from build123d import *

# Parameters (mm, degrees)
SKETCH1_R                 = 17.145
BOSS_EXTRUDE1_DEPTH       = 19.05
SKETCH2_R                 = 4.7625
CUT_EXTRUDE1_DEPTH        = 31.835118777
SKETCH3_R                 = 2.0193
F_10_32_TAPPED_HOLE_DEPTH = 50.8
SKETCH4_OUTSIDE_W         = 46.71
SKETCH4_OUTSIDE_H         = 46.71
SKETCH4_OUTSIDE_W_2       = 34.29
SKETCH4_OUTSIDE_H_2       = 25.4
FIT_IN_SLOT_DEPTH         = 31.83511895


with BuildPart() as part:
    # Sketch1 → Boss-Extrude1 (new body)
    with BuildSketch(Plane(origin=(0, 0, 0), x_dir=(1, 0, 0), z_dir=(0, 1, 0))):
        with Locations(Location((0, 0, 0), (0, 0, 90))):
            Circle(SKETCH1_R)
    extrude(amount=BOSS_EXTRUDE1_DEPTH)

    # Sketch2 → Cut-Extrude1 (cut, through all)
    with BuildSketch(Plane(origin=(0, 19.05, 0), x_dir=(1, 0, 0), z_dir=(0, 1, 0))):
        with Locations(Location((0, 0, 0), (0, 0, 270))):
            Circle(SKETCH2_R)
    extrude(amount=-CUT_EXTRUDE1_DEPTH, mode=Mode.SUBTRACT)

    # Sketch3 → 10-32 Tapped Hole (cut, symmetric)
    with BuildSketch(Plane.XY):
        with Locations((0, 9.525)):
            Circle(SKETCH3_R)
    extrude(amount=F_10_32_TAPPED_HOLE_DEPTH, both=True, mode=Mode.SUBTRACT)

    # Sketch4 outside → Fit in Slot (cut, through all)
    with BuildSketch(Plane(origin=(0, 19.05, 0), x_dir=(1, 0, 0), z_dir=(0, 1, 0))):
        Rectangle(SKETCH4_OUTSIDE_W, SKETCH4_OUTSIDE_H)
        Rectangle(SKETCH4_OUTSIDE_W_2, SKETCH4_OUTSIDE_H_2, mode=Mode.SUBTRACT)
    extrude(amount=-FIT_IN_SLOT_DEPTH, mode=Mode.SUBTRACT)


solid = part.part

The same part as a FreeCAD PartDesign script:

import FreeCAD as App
import Part
import Sketcher
Q = App.Units.Quantity


def add_polygon(sketch, points):
    """Adds a closed chain of lines whose ends are joined by coincident constraints."""
    first, n = sketch.GeometryCount, len(points)
    for a, b in zip(points, points[1:] + points[:1]):
        sketch.addGeometry(Part.LineSegment(App.Vector(*a, 0), App.Vector(*b, 0)), False)
    for i in range(n):
        sketch.addConstraint(Sketcher.Constraint("Coincident", first + i, 2, first + (i + 1) % n, 1))

doc = App.newDocument("Part")
params = doc.addObject("Spreadsheet::Sheet", "Params")
for row, (alias, value) in enumerate([
    ("sketch1_diameter", "1.35 in"),
    ("pad1_length", "0.75 in"),
    ("sketch2_diameter", "0.375 in"),
    ("sketch3_diameter", "0.159 in"),
    ("pocket2_length", "4 in"),
    ("sketch4_height", "1 in"),
    ("sketch4_width", "1.35 in"),
], start=1):
    params.set(f"A{row}", alias)
    params.set(f"B{row}", "=" + value)
    params.setAlias(f"B{row}", alias)

body = doc.addObject("PartDesign::Body", "Body")

sketch1 = body.newObject("Sketcher::SketchObject", "Sketch")
sketch1.AttachmentSupport = (doc.getObject("XZ_Plane"), [""])
sketch1.MapMode = "FlatFace"
sketch1.addGeometry(Part.Circle(App.Vector(0, 0, 0), App.Vector(0, 0, 1), 17), False)
sketch1.addConstraint(Sketcher.Constraint("Coincident", 0, 3, -1, 1))
sketch1.addConstraint(Sketcher.Constraint("Diameter", 0, Q("1.35 in")))
sketch1.setExpression("Constraints[1]", "Params.sketch1_diameter")
pad1 = body.newObject("PartDesign::Pad", "Pad")
pad1.Profile = sketch1
pad1.setExpression("Length", "Params.pad1_length")
pad1.Reversed = True

sketch2 = body.newObject("Sketcher::SketchObject", "Sketch001")
sketch2.AttachmentSupport = (doc.getObject("XZ_Plane"), [""])
sketch2.MapMode = "FlatFace"
sketch2.AttachmentOffset = App.Placement(App.Vector(0, 0, -0.75 * 25.4), App.Rotation())
sketch2.addGeometry(Part.Circle(App.Vector(0, 0, 0), App.Vector(0, 0, 1), 4.8), False)
sketch2.addConstraint(Sketcher.Constraint("Coincident", 0, 3, -1, 1))
sketch2.addConstraint(Sketcher.Constraint("Diameter", 0, Q("0.375 in")))
sketch2.setExpression("Constraints[1]", "Params.sketch2_diameter")
pocket1 = body.newObject("PartDesign::Pocket", "Pocket")
pocket1.Profile = sketch2
pocket1.Type = "ThroughAll"
pocket1.Reversed = True

sketch3 = body.newObject("Sketcher::SketchObject", "Sketch002")
sketch3.AttachmentSupport = (doc.getObject("XY_Plane"), [""])
sketch3.MapMode = "FlatFace"
sketch3.addGeometry(Part.Circle(App.Vector(0, 9.5, 0), App.Vector(0, 0, 1), 2), False)
sketch3.addConstraint(Sketcher.Constraint("PointOnObject", 0, 3, -2))
sketch3.addConstraint(Sketcher.Constraint("Diameter", 0, Q("0.159 in")))
sketch3.addConstraint(Sketcher.Constraint("DistanceY", -1, 1, 0, 3, Q("0.375 in")))
sketch3.setExpression("Constraints[1]", "Params.sketch3_diameter")
pocket2 = body.newObject("PartDesign::Pocket", "Pocket001")
pocket2.Profile = sketch3
pocket2.setExpression("Length", "Params.pocket2_length")
pocket2.Midplane = True

sketch4 = body.newObject("Sketcher::SketchObject", "Sketch003")
sketch4.AttachmentSupport = (doc.getObject("XZ_Plane"), [""])
sketch4.MapMode = "FlatFace"
sketch4.AttachmentOffset = App.Placement(App.Vector(0, 0, -0.75 * 25.4), App.Rotation())
add_polygon(sketch4, [(-23, -23), (-23, 23), (23, 23), (23, -23)])
add_polygon(sketch4, [(17, 13), (-17, 13), (-17, -13), (17, -13)])
sketch4.addConstraint(Sketcher.Constraint("Vertical", 0))
sketch4.addConstraint(Sketcher.Constraint("Horizontal", 1))
sketch4.addConstraint(Sketcher.Constraint("Vertical", 2))
sketch4.addConstraint(Sketcher.Constraint("Horizontal", 3))
sketch4.addConstraint(Sketcher.Constraint("Horizontal", 4))
sketch4.addConstraint(Sketcher.Constraint("Vertical", 5))
sketch4.addConstraint(Sketcher.Constraint("Horizontal", 6))
sketch4.addConstraint(Sketcher.Constraint("Vertical", 7))
sketch4.addConstraint(Sketcher.Constraint("Symmetric", 0, 2, 2, 2, -1, 1))
sketch4.addConstraint(Sketcher.Constraint("Symmetric", 4, 2, 6, 2, -1, 1))
sketch4.addConstraint(Sketcher.Constraint("Equal", 3, 0))
sketch4.addConstraint(Sketcher.Constraint("DistanceY", 5, 2, 5, 1, Q("1 in")))
sketch4.addConstraint(Sketcher.Constraint("DistanceX", 4, 2, 4, 1, Q("1.35 in")))
sketch4.addConstraint(Sketcher.Constraint("DistanceX", 1, 1, 1, 2, 46.71))
sketch4.setExpression("Constraints[19]", "Params.sketch4_height")
sketch4.setExpression("Constraints[20]", "Params.sketch4_width")
pocket3 = body.newObject("PartDesign::Pocket", "Pocket002")
pocket3.Profile = sketch4
pocket3.Type = "ThroughAll"
pocket3.Reversed = True

doc.recompute()
